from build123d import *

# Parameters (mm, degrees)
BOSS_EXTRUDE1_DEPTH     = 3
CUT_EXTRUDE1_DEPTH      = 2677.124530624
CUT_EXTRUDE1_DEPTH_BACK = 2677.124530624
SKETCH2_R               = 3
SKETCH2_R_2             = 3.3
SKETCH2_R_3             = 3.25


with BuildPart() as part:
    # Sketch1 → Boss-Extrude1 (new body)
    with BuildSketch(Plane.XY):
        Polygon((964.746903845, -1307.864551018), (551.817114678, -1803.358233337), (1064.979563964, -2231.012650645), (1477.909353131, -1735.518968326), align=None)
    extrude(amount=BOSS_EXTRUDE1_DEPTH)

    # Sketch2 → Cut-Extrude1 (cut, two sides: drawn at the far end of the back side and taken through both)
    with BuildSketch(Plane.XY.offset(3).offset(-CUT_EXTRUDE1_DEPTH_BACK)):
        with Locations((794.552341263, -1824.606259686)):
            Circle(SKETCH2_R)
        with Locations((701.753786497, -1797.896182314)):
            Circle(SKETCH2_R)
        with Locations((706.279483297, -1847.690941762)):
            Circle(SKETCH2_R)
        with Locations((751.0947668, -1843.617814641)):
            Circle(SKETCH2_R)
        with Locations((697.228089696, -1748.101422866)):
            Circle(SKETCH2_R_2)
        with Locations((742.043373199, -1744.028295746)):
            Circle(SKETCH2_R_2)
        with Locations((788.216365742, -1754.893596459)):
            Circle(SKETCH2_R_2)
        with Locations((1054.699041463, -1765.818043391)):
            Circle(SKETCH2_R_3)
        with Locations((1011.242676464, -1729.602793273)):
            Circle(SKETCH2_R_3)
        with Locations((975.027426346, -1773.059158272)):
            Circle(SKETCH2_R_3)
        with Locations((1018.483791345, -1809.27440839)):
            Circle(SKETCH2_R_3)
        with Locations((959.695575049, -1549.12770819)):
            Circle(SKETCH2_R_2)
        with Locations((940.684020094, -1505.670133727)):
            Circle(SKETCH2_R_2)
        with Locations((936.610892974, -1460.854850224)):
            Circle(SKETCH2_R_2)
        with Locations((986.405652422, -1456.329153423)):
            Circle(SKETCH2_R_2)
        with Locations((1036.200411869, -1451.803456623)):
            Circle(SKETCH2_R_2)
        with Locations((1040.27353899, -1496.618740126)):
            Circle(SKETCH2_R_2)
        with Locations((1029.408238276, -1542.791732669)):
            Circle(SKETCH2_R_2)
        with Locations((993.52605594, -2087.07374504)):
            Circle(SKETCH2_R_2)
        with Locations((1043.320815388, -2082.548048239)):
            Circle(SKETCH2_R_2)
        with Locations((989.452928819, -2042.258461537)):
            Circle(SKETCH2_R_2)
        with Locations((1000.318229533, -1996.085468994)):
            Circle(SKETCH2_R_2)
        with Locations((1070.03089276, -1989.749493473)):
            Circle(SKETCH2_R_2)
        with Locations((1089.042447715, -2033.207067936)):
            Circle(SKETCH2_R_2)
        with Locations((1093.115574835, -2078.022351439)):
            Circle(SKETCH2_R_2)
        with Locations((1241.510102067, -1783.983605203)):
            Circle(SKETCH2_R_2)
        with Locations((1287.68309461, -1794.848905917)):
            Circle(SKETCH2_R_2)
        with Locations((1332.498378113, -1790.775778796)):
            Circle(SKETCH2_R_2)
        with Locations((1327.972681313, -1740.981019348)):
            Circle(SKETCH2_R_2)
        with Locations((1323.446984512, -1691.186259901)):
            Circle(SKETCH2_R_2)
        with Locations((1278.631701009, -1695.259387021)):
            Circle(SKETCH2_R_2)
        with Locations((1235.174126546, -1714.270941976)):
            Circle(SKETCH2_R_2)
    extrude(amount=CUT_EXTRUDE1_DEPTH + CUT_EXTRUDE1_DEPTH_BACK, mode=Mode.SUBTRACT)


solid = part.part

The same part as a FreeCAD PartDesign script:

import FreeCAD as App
import Part
import Sketcher
from FreeCAD import Vector
Q = App.Units.Quantity


def add_polygon(sketch, points):
    """Adds a closed chain of lines whose ends are joined by coincident constraints."""
    first, n = sketch.GeometryCount, len(points)
    for a, b in zip(points, points[1:] + points[:1]):
        sketch.addGeometry(Part.LineSegment(App.Vector(*a, 0), App.Vector(*b, 0)), False)
    for i in range(n):
        sketch.addConstraint(Sketcher.Constraint("Coincident", first + i, 2, first + (i + 1) % n, 1))

doc = App.newDocument("Part")
body = doc.addObject("PartDesign::Body", "Body")

# Sketch on XY plane
sketch1 = doc.addObject("Sketcher::SketchObject", "Sketch")
body.addObject(sketch1)
sketch1.AttachmentSupport = (doc.XY_Plane, [""])
sketch1.MapMode = "FlatFace"
add_polygon(sketch1, [(964.746904, -1307.864551), (551.817115, -1803.358233), (1064.979564, -2231.012651), (1477.909353, -1735.518968)])  # lines 0-3
sketch1.addConstraint(Sketcher.Constraint("Perpendicular", 0, 1))
sketch1.addConstraint(Sketcher.Constraint("Perpendicular", 1, 2))
sketch1.addConstraint(Sketcher.Constraint("Perpendicular", 2, 3))
sketch1.addConstraint(Sketcher.Constraint("Distance", 0, Q("645 mm")))
sketch1.addConstraint(Sketcher.Constraint("Distance", 1, Q("668 mm")))
sketch1.addConstraint(Sketcher.Constraint("DistanceY", 1, 2, 3, 2, Q("923.1481 mm")))
sketch1.addConstraint(Sketcher.Constraint("DistanceY", 1, 2, -1, 1, Q("2231.012651 mm")))
sketch1.addConstraint(Sketcher.Constraint("DistanceX", -1, 1, 0, 2, Q("551.817115 mm")))
pad1 = doc.addObject("PartDesign::Pad", "Pad")
body.addObject(pad1)
pad1.Profile = sketch1
pad1.Length = 3

# Sketch on XY plane
sketch2 = doc.addObject("Sketcher::SketchObject", "Sketch001")
body.addObject(sketch2)
sketch2.AttachmentSupport = (doc.XY_Plane, [""])
sketch2.MapMode = "FlatFace"
sketch2.AttachmentOffset = App.Placement(Vector(0, 0, 3), App.Rotation())
sketch2.addGeometry(Part.Circle(Vector(794.552341, -1824.60626, 0), Vector(0, 0, 1), 3), False)
sketch2.addGeometry(Part.Circle(Vector(701.753786, -1797.896182, 0), Vector(0, 0, 1), 3), False)
sketch2.addGeometry(Part.Circle(Vector(706.279483, -1847.690942, 0), Vector(0, 0, 1), 3), False)
sketch2.addGeometry(Part.Circle(Vector(751.094767, -1843.617815, 0), Vector(0, 0, 1), 3), False)
sketch2.addGeometry(Part.Circle(Vector(697.22809, -1748.101423, 0), Vector(0, 0, 1), 3.3), False)
sketch2.addGeometry(Part.Circle(Vector(742.043373, -1744.028296, 0), Vector(0, 0, 1), 3.3), False)
sketch2.addGeometry(Part.Circle(Vector(788.216366, -1754.893596, 0), Vector(0, 0, 1), 3.3), False)
sketch2.addGeometry(Part.Circle(Vector(1054.699041, -1765.818043, 0), Vector(0, 0, 1), 3.25), False)
sketch2.addGeometry(Part.Circle(Vector(1011.242676, -1729.602793, 0), Vector(0, 0, 1), 3.25), False)
sketch2.addGeometry(Part.Circle(Vector(975.027426, -1773.059158, 0), Vector(0, 0, 1), 3.25), False)
sketch2.addGeometry(Part.Circle(Vector(1018.483791, -1809.274408, 0), Vector(0, 0, 1), 3.25), False)
sketch2.addGeometry(Part.Circle(Vector(959.695575, -1549.127708, 0), Vector(0, 0, 1), 3.3), False)
sketch2.addGeometry(Part.Circle(Vector(940.68402, -1505.670134, 0), Vector(0, 0, 1), 3.3), False)
sketch2.addGeometry(Part.Circle(Vector(936.610893, -1460.85485, 0), Vector(0, 0, 1), 3.3), False)
sketch2.addGeometry(Part.Circle(Vector(986.405652, -1456.329153, 0), Vector(0, 0, 1), 3.3), False)
sketch2.addGeometry(Part.Circle(Vector(1036.200412, -1451.803457, 0), Vector(0, 0, 1), 3.3), False)
sketch2.addGeometry(Part.Circle(Vector(1040.273539, -1496.61874, 0), Vector(0, 0, 1), 3.3), False)
sketch2.addGeometry(Part.Circle(Vector(1029.408238, -1542.791733, 0), Vector(0, 0, 1), 3.3), False)
sketch2.addGeometry(Part.Circle(Vector(993.526056, -2087.073745, 0), Vector(0, 0, 1), 3.3), False)
sketch2.addGeometry(Part.Circle(Vector(1043.320815, -2082.548048, 0), Vector(0, 0, 1), 3.3), False)
sketch2.addGeometry(Part.Circle(Vector(989.452929, -2042.258462, 0), Vector(0, 0, 1), 3.3), False)
sketch2.addGeometry(Part.Circle(Vector(1000.31823, -1996.085469, 0), Vector(0, 0, 1), 3.3), False)
sketch2.addGeometry(Part.Circle(Vector(1070.030893, -1989.749493, 0), Vector(0, 0, 1), 3.3), False)
sketch2.addGeometry(Part.Circle(Vector(1089.042448, -2033.207068, 0), Vector(0, 0, 1), 3.3), False)
sketch2.addGeometry(Part.Circle(Vector(1093.115575, -2078.022351, 0), Vector(0, 0, 1), 3.3), False)
sketch2.addGeometry(Part.Circle(Vector(1241.510102, -1783.983605, 0), Vector(0, 0, 1), 3.3), False)
sketch2.addGeometry(Part.Circle(Vector(1287.683095, -1794.848906, 0), Vector(0, 0, 1), 3.3), False)
sketch2.addGeometry(Part.Circle(Vector(1332.498378, -1790.775779, 0), Vector(0, 0, 1), 3.3), False)
sketch2.addGeometry(Part.Circle(Vector(1327.972681, -1740.981019, 0), Vector(0, 0, 1), 3.3), False)
sketch2.addGeometry(Part.Circle(Vector(1323.446985, -1691.18626, 0), Vector(0, 0, 1), 3.3), False)
sketch2.addGeometry(Part.Circle(Vector(1278.631701, -1695.259387, 0), Vector(0, 0, 1), 3.3), False)
sketch2.addGeometry(Part.Circle(Vector(1235.174127, -1714.270942, 0), Vector(0, 0, 1), 3.3), False)
sketch2.addConstraint(Sketcher.Constraint("Equal", 0, 1))
sketch2.addConstraint(Sketcher.Constraint("Equal", 1, 2))
sketch2.addConstraint(Sketcher.Constraint("Equal", 2, 3))
sketch2.addConstraint(Sketcher.Constraint("Equal", 4, 5))
sketch2.addConstraint(Sketcher.Constraint("Equal", 5, 6))
sketch2.addConstraint(Sketcher.Constraint("Equal", 7, 8))
sketch2.addConstraint(Sketcher.Constraint("Equal", 8, 9))
sketch2.addConstraint(Sketcher.Constraint("Equal", 9, 10))
sketch2.addConstraint(Sketcher.Constraint("Equal", 6, 11))
sketch2.addConstraint(Sketcher.Constraint("Equal", 11, 12))
sketch2.addConstraint(Sketcher.Constraint("Equal", 12, 13))
sketch2.addConstraint(Sketcher.Constraint("Equal", 13, 14))
sketch2.addConstraint(Sketcher.Constraint("Equal", 14, 15))
sketch2.addConstraint(Sketcher.Constraint("Equal", 15, 16))
sketch2.addConstraint(Sketcher.Constraint("Equal", 16, 17))
sketch2.addConstraint(Sketcher.Constraint("Equal", 17, 18))
sketch2.addConstraint(Sketcher.Constraint("Equal", 18, 19))
sketch2.addConstraint(Sketcher.Constraint("Equal", 19, 20))
sketch2.addConstraint(Sketcher.Constraint("Equal", 20, 21))
sketch2.addConstraint(Sketcher.Constraint("Equal", 21, 22))
sketch2.addConstraint(Sketcher.Constraint("Equal", 22, 23))
sketch2.addConstraint(Sketcher.Constraint("Equal", 23, 24))
sketch2.addConstraint(Sketcher.Constraint("Equal", 24, 25))
sketch2.addConstraint(Sketcher.Constraint("Equal", 25, 26))
sketch2.addConstraint(Sketcher.Constraint("Equal", 26, 27))
sketch2.addConstraint(Sketcher.Constraint("Equal", 27, 28))
sketch2.addConstraint(Sketcher.Constraint("Equal", 28, 29))
sketch2.addConstraint(Sketcher.Constraint("Equal", 29, 30))
sketch2.addConstraint(Sketcher.Constraint("Equal", 30, 31))
sketch2.addConstraint(Sketcher.Constraint("Diameter", 0, Q("6 mm")))
sketch2.addConstraint(Sketcher.Constraint("Diameter", 4, Q("6.6 mm")))
sketch2.addConstraint(Sketcher.Constraint("Diameter", 7, Q("6.5 mm")))
sketch2.addConstraint(Sketcher.Constraint("DistanceX", -1, 1, 30, 3, Q("1278.631701 mm")))
sketch2.addConstraint(Sketcher.Constraint("DistanceY", 6, 3, 5, 3, Q("10.865301 mm")))
sketch2.addConstraint(Sketcher.Constraint("DistanceX", 3, 3, 6, 3, Q("37.121599 mm")))
sketch2.addConstraint(Sketcher.Constraint("DistanceX", 0, 3, 7, 3, Q("260.1467 mm")))
sketch2.addConstraint(Sketcher.Constraint("DistanceY", 0, 3, 9, 3, Q("51.547101 mm")))
sketch2.addConstraint(Sketcher.Constraint("DistanceX", 11, 3, 8, 3, Q("51.547101 mm")))
sketch2.addConstraint(Sketcher.Constraint("DistanceY", 10, 3, 11, 3, Q("260.1467 mm")))
sketch2.addConstraint(Sketcher.Constraint("DistanceX", 17, 3, 16, 3, Q("10.865301 mm")))
sketch2.addConstraint(Sketcher.Constraint("DistanceY", 17, 3, 12, 3, Q("37.121599 mm")))
sketch2.addConstraint(Sketcher.Constraint("DistanceY", 18, 3, 7, 3, Q("321.255702 mm")))
sketch2.addConstraint(Sketcher.Constraint("DistanceX", 20, 3, 21, 3, Q("10.865301 mm")))
sketch2.addConstraint(Sketcher.Constraint("DistanceX", 10, 3, 22, 3, Q("51.547101 mm")))
sketch2.addConstraint(Sketcher.Constraint("DistanceY", 23, 3, 21, 3, Q("37.121599 mm")))
sketch2.addConstraint(Sketcher.Constraint("DistanceY", 26, 3, 25, 3, Q("10.865301 mm")))
sketch2.addConstraint(Sketcher.Constraint("DistanceX", 22, 3, 26, 3, Q("217.652202 mm")))
sketch2.addConstraint(Sketcher.Constraint("DistanceX", 8, 3, 27, 3, Q("321.255702 mm")))
sketch2.addConstraint(Sketcher.Constraint("DistanceX", 25, 3, 30, 3, Q("37.121599 mm")))
sketch2.addConstraint(Sketcher.Constraint("DistanceX", -1, 1, 0, 3, Q("794.552341 mm")))
sketch2.addConstraint(Sketcher.Constraint("DistanceY", 0, 3, -1, 1, Q("1824.60626 mm")))
sketch2.addConstraint(Sketcher.Constraint("DistanceY", 2, 3, -1, 1, Q("1847.690942 mm")))
sketch2.addConstraint(Sketcher.Constraint("DistanceX", -1, 1, 4, 3, Q("697.22809 mm")))
sketch2.addConstraint(Sketcher.Constraint("DistanceX", -1, 1, 10, 3, Q("1018.483791 mm")))
sketch2.addConstraint(Sketcher.Constraint("DistanceY", 10, 3, -1, 1, Q("1809.274408 mm")))
sketch2.addConstraint(Sketcher.Constraint("DistanceX", -1, 1, 12, 3, Q("940.68402 mm")))
sketch2.addConstraint(Sketcher.Constraint("DistanceY", 13, 3, -1, 1, Q("1460.85485 mm")))
sketch2.addConstraint(Sketcher.Constraint("DistanceX", -1, 1, 15, 3, Q("1036.200412 mm")))
sketch2.addConstraint(Sketcher.Constraint("DistanceX", -1, 1, 16, 3, Q("1040.273539 mm")))
sketch2.addConstraint(Sketcher.Constraint("DistanceY", 16, 3, -1, 1, Q("1496.61874 mm")))
sketch2.addConstraint(Sketcher.Constraint("DistanceY", 19, 3, -1, 1, Q("2082.548048 mm")))
sketch2.addConstraint(Sketcher.Constraint("DistanceX", -1, 1, 20, 3, Q("989.452929 mm")))
sketch2.addConstraint(Sketcher.Constraint("DistanceY", 20, 3, -1, 1, Q("2042.258462 mm")))
sketch2.addConstraint(Sketcher.Constraint("DistanceY", 21, 3, -1, 1, Q("1996.085469 mm")))
sketch2.addConstraint(Sketcher.Constraint("DistanceY", 24, 3, -1, 1, Q("2078.022351 mm")))
sketch2.addConstraint(Sketcher.Constraint("DistanceX", -1, 1, 27, 3, Q("1332.498378 mm")))
sketch2.addConstraint(Sketcher.Constraint("DistanceY", 27, 3, -1, 1, Q("1790.775779 mm")))
sketch2.addConstraint(Sketcher.Constraint("DistanceX", -1, 1, 28, 3, Q("1327.972681 mm")))
sketch2.addConstraint(Sketcher.Constraint("DistanceY", 28, 3, -1, 1, Q("1740.981019 mm")))
sketch2.addConstraint(Sketcher.Constraint("DistanceY", 29, 3, -1, 1, Q("1691.18626 mm")))
sketch2.addConstraint(Sketcher.Constraint("DistanceY", 31, 3, -1, 1, Q("1714.270942 mm")))
sketch2.addConstraint(Sketcher.Constraint("DistanceY", 2, 3, 1, 3, Q("49.794759 mm")))
sketch2.addConstraint(Sketcher.Constraint("DistanceX", 1, 3, 3, 3, Q("49.34098 mm")))
sketch2.addConstraint(Sketcher.Constraint("DistanceY", 1, 3, 4, 3, Q("49.794759 mm")))
sketch2.addConstraint(Sketcher.Constraint("DistanceY", 3, 3, 4, 3, Q("95.516392 mm")))
sketch2.addConstraint(Sketcher.Constraint("DistanceX", 5, 3, 0, 3, Q("52.508968 mm")))
sketch2.addConstraint(Sketcher.Constraint("DistanceY", 3, 3, 5, 3, Q("99.589519 mm")))
sketch2.addConstraint(Sketcher.Constraint("DistanceX", 2, 3, 5, 3, Q("35.76389 mm")))
sketch2.addConstraint(Sketcher.Constraint("DistanceY", 3, 3, 7, 3, Q("77.799771 mm")))
sketch2.addConstraint(Sketcher.Constraint("DistanceY", 7, 3, 8, 3, Q("36.21525 mm")))
sketch2.addConstraint(Sketcher.Constraint("DistanceX", 6, 3, 8, 3, Q("223.026311 mm")))
sketch2.addConstraint(Sketcher.Constraint("DistanceX", 9, 3, 8, 3, Q("36.21525 mm")))
sketch2.addConstraint(Sketcher.Constraint("DistanceY", 8, 3, 12, 3, Q("223.93266 mm")))
sketch2.addConstraint(Sketcher.Constraint("DistanceX", 13, 3, 7, 3, Q("118.088148 mm")))
sketch2.addConstraint(Sketcher.Constraint("DistanceX", 13, 3, 14, 3, Q("49.794759 mm")))
sketch2.addConstraint(Sketcher.Constraint("DistanceY", 12, 3, 14, 3, Q("49.34098 mm")))
sketch2.addConstraint(Sketcher.Constraint("DistanceY", 11, 3, 15, 3, Q("97.324252 mm")))
sketch2.addConstraint(Sketcher.Constraint("DistanceX", 9, 3, 18, 3, Q("18.49863 mm")))
sketch2.addConstraint(Sketcher.Constraint("DistanceX", 18, 3, 19, 3, Q("49.794759 mm")))
sketch2.addConstraint(Sketcher.Constraint("DistanceY", 20, 3, 22, 3, Q("52.508968 mm")))
sketch2.addConstraint(Sketcher.Constraint("DistanceX", 21, 3, 23, 3, Q("88.724218 mm")))
sketch2.addConstraint(Sketcher.Constraint("DistanceX", 19, 3, 24, 3, Q("49.794759 mm")))
sketch2.addConstraint(Sketcher.Constraint("DistanceY", 25, 3, 7, 3, Q("18.165562 mm")))
sketch2.addConstraint(Sketcher.Constraint("DistanceX", 26, 3, 29, 3, Q("35.76389 mm")))
sketch2.addConstraint(Sketcher.Constraint("DistanceY", 25, 3, 30, 3, Q("88.724218 mm")))
sketch2.addConstraint(Sketcher.Constraint("DistanceX", 31, 3, 26, 3, Q("52.508968 mm")))
pocket1 = doc.addObject("PartDesign::Pocket", "Pocket")
body.addObject(pocket1)
pocket1.Profile = sketch2
pocket1.Type = "ThroughAll"
pocket1.Midplane = True

doc.recompute()
